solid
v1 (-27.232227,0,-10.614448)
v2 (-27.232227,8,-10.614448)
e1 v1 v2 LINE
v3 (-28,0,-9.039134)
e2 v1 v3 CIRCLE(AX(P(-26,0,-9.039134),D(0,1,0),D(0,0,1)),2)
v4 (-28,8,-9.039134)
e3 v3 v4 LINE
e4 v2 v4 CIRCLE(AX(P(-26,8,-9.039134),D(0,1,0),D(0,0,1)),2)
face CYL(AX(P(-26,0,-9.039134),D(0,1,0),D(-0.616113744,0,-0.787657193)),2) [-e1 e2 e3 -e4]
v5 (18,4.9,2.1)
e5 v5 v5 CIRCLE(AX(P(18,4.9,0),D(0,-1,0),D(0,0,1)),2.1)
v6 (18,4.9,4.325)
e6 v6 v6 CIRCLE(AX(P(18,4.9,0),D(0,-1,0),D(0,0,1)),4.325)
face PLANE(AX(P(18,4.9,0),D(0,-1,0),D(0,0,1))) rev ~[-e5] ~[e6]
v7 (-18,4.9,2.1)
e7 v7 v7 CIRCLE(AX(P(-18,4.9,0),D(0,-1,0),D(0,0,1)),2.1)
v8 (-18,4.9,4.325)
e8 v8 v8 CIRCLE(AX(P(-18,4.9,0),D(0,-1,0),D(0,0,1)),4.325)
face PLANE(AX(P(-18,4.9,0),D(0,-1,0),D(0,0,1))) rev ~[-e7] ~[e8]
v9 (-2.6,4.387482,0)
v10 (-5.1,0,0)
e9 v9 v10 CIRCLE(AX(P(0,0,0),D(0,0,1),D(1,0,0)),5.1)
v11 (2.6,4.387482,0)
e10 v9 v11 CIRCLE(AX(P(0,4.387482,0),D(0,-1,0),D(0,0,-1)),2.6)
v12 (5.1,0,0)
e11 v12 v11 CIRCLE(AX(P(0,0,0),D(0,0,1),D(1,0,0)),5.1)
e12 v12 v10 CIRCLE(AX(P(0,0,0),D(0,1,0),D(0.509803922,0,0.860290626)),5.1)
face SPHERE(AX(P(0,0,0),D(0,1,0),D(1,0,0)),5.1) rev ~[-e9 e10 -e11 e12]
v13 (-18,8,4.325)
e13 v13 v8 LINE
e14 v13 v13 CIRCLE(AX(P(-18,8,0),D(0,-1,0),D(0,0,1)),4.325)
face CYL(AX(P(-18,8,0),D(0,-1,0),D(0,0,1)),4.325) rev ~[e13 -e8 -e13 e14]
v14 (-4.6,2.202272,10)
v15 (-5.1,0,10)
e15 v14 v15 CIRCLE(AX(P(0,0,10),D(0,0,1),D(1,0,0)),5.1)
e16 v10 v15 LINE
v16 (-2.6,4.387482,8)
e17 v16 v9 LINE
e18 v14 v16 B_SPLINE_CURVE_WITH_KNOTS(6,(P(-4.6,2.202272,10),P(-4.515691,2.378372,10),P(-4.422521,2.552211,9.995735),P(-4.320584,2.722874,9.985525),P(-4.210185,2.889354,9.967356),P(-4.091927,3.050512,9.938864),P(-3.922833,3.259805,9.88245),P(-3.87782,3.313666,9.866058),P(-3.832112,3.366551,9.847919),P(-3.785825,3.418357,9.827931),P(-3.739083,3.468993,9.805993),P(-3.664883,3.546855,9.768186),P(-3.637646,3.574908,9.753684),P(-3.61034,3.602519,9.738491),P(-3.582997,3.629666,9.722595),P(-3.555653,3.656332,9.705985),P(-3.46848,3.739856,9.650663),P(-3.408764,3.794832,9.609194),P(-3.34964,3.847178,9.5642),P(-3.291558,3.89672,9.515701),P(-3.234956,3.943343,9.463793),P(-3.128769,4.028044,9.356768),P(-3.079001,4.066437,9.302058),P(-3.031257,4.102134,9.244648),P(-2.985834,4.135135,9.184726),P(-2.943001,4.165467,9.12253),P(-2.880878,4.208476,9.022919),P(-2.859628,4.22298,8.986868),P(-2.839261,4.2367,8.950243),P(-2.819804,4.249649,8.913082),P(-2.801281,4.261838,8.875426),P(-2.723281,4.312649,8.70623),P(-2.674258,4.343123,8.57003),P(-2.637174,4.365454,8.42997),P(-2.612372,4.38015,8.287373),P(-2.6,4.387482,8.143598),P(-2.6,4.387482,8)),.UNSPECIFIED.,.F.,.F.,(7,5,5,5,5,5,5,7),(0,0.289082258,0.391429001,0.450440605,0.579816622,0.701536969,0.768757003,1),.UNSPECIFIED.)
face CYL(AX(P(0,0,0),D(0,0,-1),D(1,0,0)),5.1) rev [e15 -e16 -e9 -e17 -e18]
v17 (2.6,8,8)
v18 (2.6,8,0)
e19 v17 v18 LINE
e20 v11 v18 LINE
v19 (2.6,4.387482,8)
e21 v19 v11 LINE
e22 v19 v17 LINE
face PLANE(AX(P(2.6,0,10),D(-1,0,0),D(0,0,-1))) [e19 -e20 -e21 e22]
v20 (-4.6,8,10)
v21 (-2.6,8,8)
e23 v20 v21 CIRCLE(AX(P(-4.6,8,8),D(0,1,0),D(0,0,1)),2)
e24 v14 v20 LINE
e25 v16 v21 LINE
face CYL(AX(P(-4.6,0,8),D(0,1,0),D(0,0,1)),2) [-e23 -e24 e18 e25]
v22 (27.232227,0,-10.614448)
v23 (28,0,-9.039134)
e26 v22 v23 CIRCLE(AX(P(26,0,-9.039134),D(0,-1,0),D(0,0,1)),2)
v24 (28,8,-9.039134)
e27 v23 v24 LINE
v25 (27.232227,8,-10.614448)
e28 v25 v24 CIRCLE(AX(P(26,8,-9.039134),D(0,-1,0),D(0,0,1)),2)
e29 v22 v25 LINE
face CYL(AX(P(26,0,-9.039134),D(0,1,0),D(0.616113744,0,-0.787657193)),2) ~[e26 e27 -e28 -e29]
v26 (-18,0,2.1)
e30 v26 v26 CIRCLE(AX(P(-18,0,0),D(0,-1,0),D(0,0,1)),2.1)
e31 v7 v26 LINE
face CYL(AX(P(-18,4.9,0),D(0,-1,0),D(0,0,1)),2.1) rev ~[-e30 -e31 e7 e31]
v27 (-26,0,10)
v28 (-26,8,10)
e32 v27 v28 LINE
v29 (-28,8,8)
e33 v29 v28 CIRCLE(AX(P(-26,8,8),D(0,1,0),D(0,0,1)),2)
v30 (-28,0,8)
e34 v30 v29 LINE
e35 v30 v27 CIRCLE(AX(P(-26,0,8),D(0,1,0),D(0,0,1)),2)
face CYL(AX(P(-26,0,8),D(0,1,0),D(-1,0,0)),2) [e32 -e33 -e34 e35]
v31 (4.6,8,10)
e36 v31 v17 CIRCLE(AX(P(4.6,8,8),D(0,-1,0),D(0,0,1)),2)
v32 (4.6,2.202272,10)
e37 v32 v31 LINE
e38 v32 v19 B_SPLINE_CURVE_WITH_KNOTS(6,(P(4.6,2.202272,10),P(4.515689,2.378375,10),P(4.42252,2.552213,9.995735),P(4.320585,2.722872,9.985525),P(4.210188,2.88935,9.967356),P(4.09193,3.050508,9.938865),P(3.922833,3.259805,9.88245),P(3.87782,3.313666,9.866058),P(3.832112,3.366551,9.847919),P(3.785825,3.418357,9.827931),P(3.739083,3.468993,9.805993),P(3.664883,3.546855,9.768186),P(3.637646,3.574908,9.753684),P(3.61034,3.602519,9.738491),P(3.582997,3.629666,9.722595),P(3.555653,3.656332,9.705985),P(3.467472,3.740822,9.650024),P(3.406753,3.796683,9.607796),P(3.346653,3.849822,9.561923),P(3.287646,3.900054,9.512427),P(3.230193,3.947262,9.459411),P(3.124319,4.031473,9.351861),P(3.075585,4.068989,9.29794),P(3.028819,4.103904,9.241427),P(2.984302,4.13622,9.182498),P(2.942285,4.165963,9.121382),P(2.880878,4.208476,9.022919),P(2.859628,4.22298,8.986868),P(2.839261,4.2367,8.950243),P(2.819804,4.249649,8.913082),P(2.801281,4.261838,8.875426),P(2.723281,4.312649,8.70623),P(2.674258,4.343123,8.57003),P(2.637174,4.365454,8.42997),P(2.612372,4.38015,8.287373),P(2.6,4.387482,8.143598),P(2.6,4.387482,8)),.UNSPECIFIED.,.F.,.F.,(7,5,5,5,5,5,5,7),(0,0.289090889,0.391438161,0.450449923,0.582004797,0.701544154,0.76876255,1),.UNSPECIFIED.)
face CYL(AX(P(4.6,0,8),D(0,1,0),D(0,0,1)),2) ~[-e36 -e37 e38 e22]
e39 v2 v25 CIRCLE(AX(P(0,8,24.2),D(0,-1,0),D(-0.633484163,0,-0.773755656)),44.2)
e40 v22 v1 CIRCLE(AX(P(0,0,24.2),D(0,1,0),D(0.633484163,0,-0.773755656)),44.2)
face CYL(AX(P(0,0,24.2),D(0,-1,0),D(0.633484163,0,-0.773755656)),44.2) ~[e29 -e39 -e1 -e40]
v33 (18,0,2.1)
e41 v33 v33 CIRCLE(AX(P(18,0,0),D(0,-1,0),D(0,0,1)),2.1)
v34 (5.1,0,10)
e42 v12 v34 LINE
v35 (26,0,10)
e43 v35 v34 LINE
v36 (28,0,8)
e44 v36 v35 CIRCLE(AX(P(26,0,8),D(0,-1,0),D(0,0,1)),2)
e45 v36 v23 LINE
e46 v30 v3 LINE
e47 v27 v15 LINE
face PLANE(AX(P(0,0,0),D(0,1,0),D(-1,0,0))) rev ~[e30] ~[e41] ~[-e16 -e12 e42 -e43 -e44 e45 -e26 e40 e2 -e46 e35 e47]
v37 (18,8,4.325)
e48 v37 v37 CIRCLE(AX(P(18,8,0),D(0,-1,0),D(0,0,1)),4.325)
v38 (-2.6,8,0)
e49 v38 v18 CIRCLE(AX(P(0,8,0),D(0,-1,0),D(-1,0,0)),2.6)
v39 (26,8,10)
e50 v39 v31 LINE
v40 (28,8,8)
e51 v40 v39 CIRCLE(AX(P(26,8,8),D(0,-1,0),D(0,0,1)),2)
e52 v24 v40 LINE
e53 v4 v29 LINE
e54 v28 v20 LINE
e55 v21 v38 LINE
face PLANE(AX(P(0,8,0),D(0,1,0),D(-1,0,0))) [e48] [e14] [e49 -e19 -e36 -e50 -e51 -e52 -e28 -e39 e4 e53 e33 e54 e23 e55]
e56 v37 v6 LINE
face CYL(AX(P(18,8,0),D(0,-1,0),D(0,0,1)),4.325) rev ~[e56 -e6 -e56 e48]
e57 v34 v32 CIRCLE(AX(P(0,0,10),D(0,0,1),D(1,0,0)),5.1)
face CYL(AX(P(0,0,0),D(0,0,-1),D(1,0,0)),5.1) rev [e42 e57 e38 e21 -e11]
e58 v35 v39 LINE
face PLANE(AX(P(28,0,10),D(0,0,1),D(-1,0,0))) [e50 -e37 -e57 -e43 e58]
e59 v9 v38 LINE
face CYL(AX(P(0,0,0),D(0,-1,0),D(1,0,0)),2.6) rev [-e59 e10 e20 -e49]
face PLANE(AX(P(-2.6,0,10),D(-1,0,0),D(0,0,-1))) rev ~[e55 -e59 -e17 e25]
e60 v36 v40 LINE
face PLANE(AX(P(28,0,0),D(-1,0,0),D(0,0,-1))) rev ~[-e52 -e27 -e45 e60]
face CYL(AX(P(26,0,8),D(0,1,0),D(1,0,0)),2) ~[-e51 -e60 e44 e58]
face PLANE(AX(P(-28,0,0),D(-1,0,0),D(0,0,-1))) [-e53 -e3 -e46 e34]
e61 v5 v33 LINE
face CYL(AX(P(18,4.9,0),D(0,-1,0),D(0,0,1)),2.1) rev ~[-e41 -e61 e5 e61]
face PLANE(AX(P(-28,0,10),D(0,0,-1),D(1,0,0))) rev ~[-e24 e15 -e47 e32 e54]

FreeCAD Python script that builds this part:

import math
import FreeCAD as App
import Part
import Sketcher

V = App.Vector


def edges_at(feature, points):
    """Names of the edges that pass closest to the given points."""
    edges = feature.Shape.Edges
    near = lambda p: min(range(len(edges)), key=lambda i: edges[i].distToShape(Part.Vertex(*p))[0])
    return sorted({f"Edge{near(p) + 1}" for p in points})

doc = App.newDocument("Part")
body = doc.addObject("PartDesign::Body", "Body")

# Sketch on XZ plane
sketch1 = body.newObject("Sketcher::SketchObject", "Sketch")
sketch1.AttachmentSupport = (doc.getObject("XZ_Plane"), [""])
sketch1.MapMode = "FlatFace"
sketch1.addGeometry([
    Part.ArcOfCircle(Part.Circle(V(0, 24.2, 0), V(0, 0, 1), 44.2), math.radians(-129), math.radians(-51)),  # 0
    Part.LineSegment(V(-28, -10, 0), V(-28, 10, 0)),  # 1
    Part.LineSegment(V(-28, 10, 0), V(-2.6, 10, 0)),  # 2
    Part.LineSegment(V(-2.6, 10, 0), V(-2.6, 0, 0)),  # 3
    Part.ArcOfCircle(Part.Circle(V(0, 0, 0), V(0, 0, 1), 2.6), math.radians(180), math.radians(360)),  # 4
    Part.LineSegment(V(2.6, 0, 0), V(2.6, 10, 0)),  # 5
    Part.LineSegment(V(2.6, 10, 0), V(28, 10, 0)),  # 6
    Part.LineSegment(V(28, 10, 0), V(28, -10, 0)),  # 7
], False)
sketch1.addConstraint([
    Sketcher.Constraint("Coincident", 0, 1, 1, 1),
    Sketcher.Constraint("Coincident", 1, 2, 2, 1),
    Sketcher.Constraint("Coincident", 2, 2, 3, 1),
    Sketcher.Constraint("Tangent", 3, 2, 4, 1),
    Sketcher.Constraint("Tangent", 4, 2, 5, 1),
    Sketcher.Constraint("Coincident", 5, 2, 6, 1),
    Sketcher.Constraint("Coincident", 6, 2, 7, 1),
    Sketcher.Constraint("Coincident", 7, 2, 0, 2),
    Sketcher.Constraint("Vertical", 1),
    Sketcher.Constraint("Horizontal", 2),
    Sketcher.Constraint("Vertical", 3),
    Sketcher.Constraint("Vertical", 5),
    Sketcher.Constraint("Horizontal", 6),
    Sketcher.Constraint("Vertical", 7),
    Sketcher.Constraint("Coincident", 4, 3, -1, 1),
    Sketcher.Constraint("Symmetric", 0, 1, 6, 2, -1, 1),
    Sketcher.Constraint("PointOnObject", 0, 3, -2),
    Sketcher.Constraint("Horizontal", 2, 2, 5, 2),
    Sketcher.Constraint("Radius", 4, 2.6),
    Sketcher.Constraint("DistanceY", 1, 1, 1, 2, 20.0),
    Sketcher.Constraint("Radius", 0, 44.2),
    Sketcher.Constraint("DistanceX", 2, 1, 2, 2, 25.4),
])
pad1 = body.newObject("PartDesign::Pad", "Pad")
pad1.Profile = sketch1
pad1.Length = 8
pad1.Reversed = True

# Sketch on XY plane
sketch2 = body.newObject("Sketcher::SketchObject", "Sketch001")
sketch2.AttachmentSupport = (doc.getObject("XY_Plane"), [""])
sketch2.MapMode = "FlatFace"
sketch2.addGeometry([
    Part.LineSegment(V(0, 0, 0), V(5, 0, 0)),
    Part.ArcOfCircle(Part.Circle(V(0, 0, 0), V(0, 0, 1), 5), math.radians(0), math.radians(90)),
    Part.LineSegment(V(0, 5, 0), V(0, 0, 0)),
], False)
sketch2.addConstraint([
    Sketcher.Constraint("Coincident", 0, 2, 1, 1),
    Sketcher.Constraint("Coincident", 1, 2, 2, 1),
    Sketcher.Constraint("Coincident", 2, 2, 0, 1),
    Sketcher.Constraint("Horizontal", 0),
    Sketcher.Constraint("Vertical", 2),
    Sketcher.Constraint("Coincident", 1, 3, -1, 1),
    Sketcher.Constraint("Coincident", 2, 2, -1, 1),
    Sketcher.Constraint("Radius", 1, 5.1),
])
groove = body.newObject("PartDesign::Groove", "Groove")
groove.Profile = sketch2
groove.ReferenceAxis = (sketch2, ["V_Axis"])
groove.Angle = 360

# Sketch on XZ plane
sketch3 = body.newObject("Sketcher::SketchObject", "Sketch002")
sketch3.AttachmentSupport = (doc.getObject("XZ_Plane"), [""])
sketch3.MapMode = "FlatFace"
sketch3.AttachmentOffset = App.Placement(V(0, 0, -8), App.Rotation())
sketch3.addGeometry([
    Part.Circle(V(18, 0, 0), V(0, 0, 1), 2.1),
    Part.Circle(V(-18, 0, 0), V(0, 0, 1), 2.1),
], False)
sketch3.addConstraint([
    Sketcher.Constraint("Equal", 0, 1),
    Sketcher.Constraint("Symmetric", 0, 3, 1, 3, -1, 1),
    Sketcher.Constraint("PointOnObject", 0, 3, -1),
    Sketcher.Constraint("Diameter", 0, 4.2),
    Sketcher.Constraint("DistanceX", -1, 1, 0, 3, 18.0),
])
doc.recompute()
hole = body.newObject("PartDesign::Hole", "Hole")
hole.Profile = sketch3
hole.ThreadType = "None"
hole.Diameter = 4.2
hole.DepthType = "ThroughAll"
hole.HoleCutType = "Counterbore"
hole.HoleCutDiameter = 8.65
hole.HoleCutDepth = 3.1
hole.Reversed = True
doc.recompute()

fillet = body.newObject("PartDesign::Fillet", "Fillet")
fillet.Base = (hole, edges_at(hole, [
    (28, 4, 10),
    (28, 4, -10),
    (-28, 4, -10),
    (-28, 4, 10),
    (-2.6, 4, 10),
    (2.6, 4, 10),
]))
fillet.Radius = 2

# Sketch on XY plane
sketch4 = body.newObject("Sketcher::SketchObject", "Sketch003")
sketch4.AttachmentSupport = (doc.getObject("XY_Plane"), [""])
sketch4.MapMode = "FlatFace"
sketch4.addGeometry([
    Part.LineSegment(V(-5, 0, 0), V(5, 0, 0)),
    Part.ArcOfCircle(Part.Circle(V(0, 0, 0), V(0, 0, 1), 5), math.radians(0), math.radians(180)),
], False)
sketch4.addConstraint([
    Sketcher.Constraint("Coincident", 0, 1, 1, 2),
    Sketcher.Constraint("Coincident", 1, 1, 0, 2),
    Sketcher.Constraint("Horizontal", 0),
    Sketcher.Constraint("Coincident", 1, 3, -1, 1),
    Sketcher.Constraint("PointOnObject", 0, 1, -1),
    Sketcher.Constraint("Radius", 1, 5.1),
])
pocket1 = body.newObject("PartDesign::Pocket", "Pocket")
pocket1.Profile = sketch4
pocket1.Length = 10
pocket1.Reversed = True

doc.recompute()
